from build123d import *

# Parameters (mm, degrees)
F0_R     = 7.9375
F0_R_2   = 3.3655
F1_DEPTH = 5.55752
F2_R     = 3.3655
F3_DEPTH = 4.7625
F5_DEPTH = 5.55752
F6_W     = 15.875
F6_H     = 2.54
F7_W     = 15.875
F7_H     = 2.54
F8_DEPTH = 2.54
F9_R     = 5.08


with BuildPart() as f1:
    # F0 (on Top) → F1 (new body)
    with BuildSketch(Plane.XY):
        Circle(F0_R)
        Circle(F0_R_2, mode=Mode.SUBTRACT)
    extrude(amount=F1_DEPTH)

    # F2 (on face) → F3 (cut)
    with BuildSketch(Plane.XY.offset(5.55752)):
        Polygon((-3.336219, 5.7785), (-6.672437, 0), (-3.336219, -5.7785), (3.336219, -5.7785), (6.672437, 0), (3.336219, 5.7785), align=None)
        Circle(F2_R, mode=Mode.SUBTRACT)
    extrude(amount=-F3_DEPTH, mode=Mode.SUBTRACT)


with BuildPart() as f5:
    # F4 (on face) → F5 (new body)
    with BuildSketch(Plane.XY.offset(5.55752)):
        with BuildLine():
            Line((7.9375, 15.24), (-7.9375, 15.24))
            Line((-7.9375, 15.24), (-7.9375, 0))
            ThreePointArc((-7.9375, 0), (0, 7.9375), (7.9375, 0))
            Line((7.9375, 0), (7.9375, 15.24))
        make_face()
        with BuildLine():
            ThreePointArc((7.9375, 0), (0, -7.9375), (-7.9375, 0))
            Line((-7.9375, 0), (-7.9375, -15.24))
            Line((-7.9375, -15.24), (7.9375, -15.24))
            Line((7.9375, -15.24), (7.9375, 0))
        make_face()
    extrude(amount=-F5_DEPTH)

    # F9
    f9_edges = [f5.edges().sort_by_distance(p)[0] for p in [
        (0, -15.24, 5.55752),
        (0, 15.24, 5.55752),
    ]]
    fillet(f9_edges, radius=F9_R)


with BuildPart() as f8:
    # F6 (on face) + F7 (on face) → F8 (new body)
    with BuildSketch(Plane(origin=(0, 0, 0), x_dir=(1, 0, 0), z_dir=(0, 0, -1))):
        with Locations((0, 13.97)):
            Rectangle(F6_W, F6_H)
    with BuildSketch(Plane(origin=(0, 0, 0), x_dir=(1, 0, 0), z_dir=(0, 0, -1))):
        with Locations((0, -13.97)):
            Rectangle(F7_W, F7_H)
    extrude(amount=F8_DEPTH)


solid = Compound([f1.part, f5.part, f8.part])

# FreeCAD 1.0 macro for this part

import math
import FreeCAD as App
import Part
import Sketcher
from FreeCAD import Vector
Q = App.Units.Quantity


def edges_at(feature, points):
    """Names of the edges that pass closest to the given points."""
    edges = feature.Shape.Edges
    near = lambda p: min(range(len(edges)), key=lambda i: edges[i].distToShape(Part.Vertex(*p))[0])
    return sorted({f"Edge{near(p) + 1}" for p in points})


def add_polygon(sketch, points):
    """Adds a closed chain of lines whose ends are joined by coincident constraints."""
    first, n = sketch.GeometryCount, len(points)
    for a, b in zip(points, points[1:] + points[:1]):
        sketch.addGeometry(Part.LineSegment(App.Vector(*a, 0), App.Vector(*b, 0)), False)
    for i in range(n):
        sketch.addConstraint(Sketcher.Constraint("Coincident", first + i, 2, first + (i + 1) % n, 1))

doc = App.newDocument("Part")
body = doc.addObject("PartDesign::Body", "Body")

sketch1 = doc.addObject("Sketcher::SketchObject", "Sketch")
body.addObject(sketch1)
sketch1.AttachmentSupport = (doc.XY_Plane, [""])
sketch1.MapMode = "FlatFace"
sketch1.addGeometry([
    Part.Circle(Vector(0, 0, 0), Vector(0, 0, 1), 7.9),
    Part.Circle(Vector(0, 0, 0), Vector(0, 0, 1), 3.4),
], False)
sketch1.addConstraint([
    Sketcher.Constraint("Coincident", 0, 3, -1, 1),
    Sketcher.Constraint("Coincident", 1, 3, -1, 1),
    Sketcher.Constraint("Diameter", 0, Q("0.625 in")),
    Sketcher.Constraint("Diameter", 1, Q("0.265 in")),
])
pad1 = doc.addObject("PartDesign::Pad", "Pad")
body.addObject(pad1)
pad1.Profile = sketch1
pad1.Length = Q("0.2188 in")

sketch2 = doc.addObject("Sketcher::SketchObject", "Sketch001")
body.addObject(sketch2)
sketch2.AttachmentSupport = (doc.XY_Plane, [""])
sketch2.MapMode = "FlatFace"
sketch2.AttachmentOffset = App.Placement(Vector(0, 0, 0.2188 * 25.4), App.Rotation())
add_polygon(sketch2, [(-3.3, 5.8), (-6.7, 0), (-3.3, -5.8), (3.3, -5.8), (6.7, 0), (3.3, 5.8)])
sketch2.addGeometry(Part.Circle(Vector(0, 0, 0), Vector(0, 0, 1), 3.4), False)
sketch2.addConstraint([
    Sketcher.Constraint("Horizontal", 2),
    Sketcher.Constraint("Horizontal", 5),
    Sketcher.Constraint("Coincident", 6, 3, -1, 1),
    Sketcher.Constraint("Symmetric", 0, 2, 3, 2, -1, 1),
    Sketcher.Constraint("Symmetric", 1, 2, 4, 2, -1, 1),
    Sketcher.Constraint("PointOnObject", 0, 2, -1),
    Sketcher.Constraint("Parallel", 0, 3),
    Sketcher.Constraint("Vertical", 2, 2, 4, 2),
    Sketcher.Constraint("Diameter", 6, Q("0.265 in")),
    Sketcher.Constraint("Angle", 0, Q("-119.999996 deg")),
    Sketcher.Constraint("DistanceY", 2, 2, 4, 2, Q("0.455 in")),
    Sketcher.Constraint("DistanceX", 2, 1, 2, 2, 6.672438),
])
pocket1 = doc.addObject("PartDesign::Pocket", "Pocket")
body.addObject(pocket1)
pocket1.Profile = sketch2
pocket1.Length = Q("0.1875 in")
body2 = doc.addObject("PartDesign::Body", "Body001")
body2.AllowCompound = True

sketch3 = doc.addObject("Sketcher::SketchObject", "Sketch002")
body2.addObject(sketch3)
sketch3.AttachmentSupport = (doc.getObject("XY_Plane001"), [""])
sketch3.MapMode = "FlatFace"
sketch3.AttachmentOffset = App.Placement(Vector(0, 0, 0.2188 * 25.4), App.Rotation())
sketch3.addGeometry([
    Part.LineSegment(Vector(8, 15, 0), Vector(-8, 15, 0)),
    Part.LineSegment(Vector(-8, 15, 0), Vector(-8, 0, 0)),
    Part.ArcOfCircle(Part.Circle(Vector(0, 0, 0), Vector(0, 0, 1), 8), math.radians(0), math.radians(180)),
    Part.LineSegment(Vector(8, 0, 0), Vector(8, 15, 0)),
    Part.ArcOfCircle(Part.Circle(Vector(0, 0, 0), Vector(0, 0, 1), 8), math.radians(180), math.radians(360)),
    Part.LineSegment(Vector(-8, 0, 0), Vector(-8, -15, 0)),
    Part.LineSegment(Vector(-8, -15, 0), Vector(8, -15, 0)),
    Part.LineSegment(Vector(8, -15, 0), Vector(8, 0, 0)),
], False)
sketch3.addConstraint([
    Sketcher.Constraint("Coincident", 0, 2, 1, 1),
    Sketcher.Constraint("Tangent", 1, 2, 2, 2),
    Sketcher.Constraint("Tangent", 2, 1, 3, 1),
    Sketcher.Constraint("Coincident", 3, 2, 0, 1),
    Sketcher.Constraint("Tangent", 4, 1, 5, 1),
    Sketcher.Constraint("Coincident", 5, 2, 6, 1),
    Sketcher.Constraint("Coincident", 6, 2, 7, 1),
    Sketcher.Constraint("Tangent", 7, 2, 4, 2),
    Sketcher.Constraint("Horizontal", 0),
    Sketcher.Constraint("Vertical", 1),
    Sketcher.Constraint("Vertical", 3),
    Sketcher.Constraint("Vertical", 5),
    Sketcher.Constraint("Horizontal", 6),
    Sketcher.Constraint("Vertical", 7),
    Sketcher.Constraint("Coincident", 2, 3, -1, 1),
    Sketcher.Constraint("Coincident", 4, 3, -1, 1),
    Sketcher.Constraint("Equal", 2, 4),
    Sketcher.Constraint("Equal", 3, 5),
    Sketcher.Constraint("DistanceY", 1, 2, 1, 1, Q("0.6 in")),
    Sketcher.Constraint("Radius", 2, Q("0.3125 in")),
])
pad2 = doc.addObject("PartDesign::Pad", "Pad001")
body2.addObject(pad2)
pad2.Profile = sketch3
pad2.Length = Q("0.2188 in")
pad2.Reversed = True
doc.recompute()

fillet = doc.addObject("PartDesign::Fillet", "Fillet")
body2.addObject(fillet)
fillet.Base = (pad2, edges_at(pad2, [(0, -15.24, 5.558), (0, 15.24, 5.558)]))
fillet.Radius = Q("0.2 in")
body3 = doc.addObject("PartDesign::Body", "Body002")
body3.AllowCompound = True

sketch4 = doc.addObject("Sketcher::SketchObject", "Sketch003")
body3.addObject(sketch4)
sketch4.AttachmentSupport = (doc.getObject("XY_Plane002"), [""])
sketch4.MapMode = "FlatFace"
add_polygon(sketch4, [(-7.9, -15.2), (-7.9, -12.7), (7.9, -12.7), (7.9, -15.2)])
add_polygon(sketch4, [(-7.9, 12.7), (-7.9, 15.2), (7.9, 15.2), (7.9, 12.7)])
sketch4.addConstraint([
    Sketcher.Constraint("Vertical", 0),
    Sketcher.Constraint("Horizontal", 1),
    Sketcher.Constraint("Vertical", 2),
    Sketcher.Constraint("Horizontal", 3),
    Sketcher.Constraint("Vertical", 4),
    Sketcher.Constraint("Horizontal", 5),
    Sketcher.Constraint("Vertical", 6),
    Sketcher.Constraint("Horizontal", 7),
    Sketcher.Constraint("Symmetric", 2, 2, 4, 2, -1, 1),
    Sketcher.Constraint("Symmetric", 0, 2, 6, 2, -1, 1),
    Sketcher.Constraint("Vertical", 3, 2, 4, 2),
    Sketcher.Constraint("DistanceY", 0, 1, 0, 2, Q("0.1 in")),
    Sketcher.Constraint("DistanceY", 1, 2, 6, 2, Q("1 in")),
    Sketcher.Constraint("DistanceX", 1, 1, 1, 2, Q("0.625 in")),
])
pad3 = doc.addObject("PartDesign::Pad", "Pad002")
body3.addObject(pad3)
pad3.Profile = sketch4
pad3.Length = Q("0.1 in")
pad3.Reversed = True

doc.recompute()
